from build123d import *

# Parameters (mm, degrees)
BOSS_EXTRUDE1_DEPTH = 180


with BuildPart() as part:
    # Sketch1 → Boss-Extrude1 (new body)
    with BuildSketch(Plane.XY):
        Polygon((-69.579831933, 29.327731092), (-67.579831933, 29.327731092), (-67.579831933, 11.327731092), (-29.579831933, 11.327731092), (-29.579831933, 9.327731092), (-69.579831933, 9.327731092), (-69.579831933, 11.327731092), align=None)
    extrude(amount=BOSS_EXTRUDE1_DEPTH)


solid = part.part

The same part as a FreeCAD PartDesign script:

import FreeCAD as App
import Part
import Sketcher
from FreeCAD import Vector


def add_polygon(sketch, points):
    """Adds a closed chain of lines whose ends are joined by coincident constraints."""
    first, n = sketch.GeometryCount, len(points)
    for a, b in zip(points, points[1:] + points[:1]):
        sketch.addGeometry(Part.LineSegment(App.Vector(*a, 0), App.Vector(*b, 0)), False)
    for i in range(n):
        sketch.addConstraint(Sketcher.Constraint("Coincident", first + i, 2, first + (i + 1) % n, 1))

doc = App.newDocument("Part")
params = doc.addObject("Spreadsheet::Sheet", "Params")
for row, (alias, value) in enumerate([
    ("sketch1_width", "2 mm"),
    ("sketch1_width2", "40 mm"),
    ("sketch1_height", "20 mm"),
    ("pad1_length", "180 mm"),
], start=1):
    params.set(f"A{row}", alias)
    params.set(f"B{row}", "=" + value)
    params.setAlias(f"B{row}", alias)

body = doc.addObject("PartDesign::Body", "Body")

# Sketch on XY plane
sketch1 = doc.addObject("Sketcher::SketchObject", "Sketch")
body.addObject(sketch1)
sketch1.AttachmentSupport = (doc.XY_Plane, [""])
sketch1.MapMode = "FlatFace"
add_polygon(sketch1, [(-67.6, 29.3), (-69.6, 29.3), (-69.6, 9.3), (-29.6, 9.3), (-29.6, 11.3), (-67.6, 11.3)])  # lines 0-5
sketch1.addConstraint([
    Sketcher.Constraint("Horizontal", 0),
    Sketcher.Constraint("Vertical", 1),
    Sketcher.Constraint("Horizontal", 2),
    Sketcher.Constraint("Vertical", 3),
    Sketcher.Constraint("Horizontal", 4),
    Sketcher.Constraint("Vertical", 5),
    Sketcher.Constraint("Equal", 0, 3),
    Sketcher.Constraint("DistanceX", 0, 2, 0, 1, 2.0),
    Sketcher.Constraint("DistanceX", 2, 1, 2, 2, 40.0),
    Sketcher.Constraint("DistanceY", 1, 2, 1, 1, 20.0),
    Sketcher.Constraint("DistanceX", 0, 2, -1, 1, 69.579832),
    Sketcher.Constraint("DistanceY", -1, 1, 0, 2, 29.327731),
])
sketch1.setExpression("Constraints[13]", "Params.sketch1_width")
sketch1.setExpression("Constraints[14]", "Params.sketch1_width2")
sketch1.setExpression("Constraints[15]", "Params.sketch1_height")
pad1 = doc.addObject("PartDesign::Pad", "Pad")
body.addObject(pad1)
pad1.Profile = sketch1
pad1.setExpression("Length", "Params.pad1_length")

doc.recompute()
